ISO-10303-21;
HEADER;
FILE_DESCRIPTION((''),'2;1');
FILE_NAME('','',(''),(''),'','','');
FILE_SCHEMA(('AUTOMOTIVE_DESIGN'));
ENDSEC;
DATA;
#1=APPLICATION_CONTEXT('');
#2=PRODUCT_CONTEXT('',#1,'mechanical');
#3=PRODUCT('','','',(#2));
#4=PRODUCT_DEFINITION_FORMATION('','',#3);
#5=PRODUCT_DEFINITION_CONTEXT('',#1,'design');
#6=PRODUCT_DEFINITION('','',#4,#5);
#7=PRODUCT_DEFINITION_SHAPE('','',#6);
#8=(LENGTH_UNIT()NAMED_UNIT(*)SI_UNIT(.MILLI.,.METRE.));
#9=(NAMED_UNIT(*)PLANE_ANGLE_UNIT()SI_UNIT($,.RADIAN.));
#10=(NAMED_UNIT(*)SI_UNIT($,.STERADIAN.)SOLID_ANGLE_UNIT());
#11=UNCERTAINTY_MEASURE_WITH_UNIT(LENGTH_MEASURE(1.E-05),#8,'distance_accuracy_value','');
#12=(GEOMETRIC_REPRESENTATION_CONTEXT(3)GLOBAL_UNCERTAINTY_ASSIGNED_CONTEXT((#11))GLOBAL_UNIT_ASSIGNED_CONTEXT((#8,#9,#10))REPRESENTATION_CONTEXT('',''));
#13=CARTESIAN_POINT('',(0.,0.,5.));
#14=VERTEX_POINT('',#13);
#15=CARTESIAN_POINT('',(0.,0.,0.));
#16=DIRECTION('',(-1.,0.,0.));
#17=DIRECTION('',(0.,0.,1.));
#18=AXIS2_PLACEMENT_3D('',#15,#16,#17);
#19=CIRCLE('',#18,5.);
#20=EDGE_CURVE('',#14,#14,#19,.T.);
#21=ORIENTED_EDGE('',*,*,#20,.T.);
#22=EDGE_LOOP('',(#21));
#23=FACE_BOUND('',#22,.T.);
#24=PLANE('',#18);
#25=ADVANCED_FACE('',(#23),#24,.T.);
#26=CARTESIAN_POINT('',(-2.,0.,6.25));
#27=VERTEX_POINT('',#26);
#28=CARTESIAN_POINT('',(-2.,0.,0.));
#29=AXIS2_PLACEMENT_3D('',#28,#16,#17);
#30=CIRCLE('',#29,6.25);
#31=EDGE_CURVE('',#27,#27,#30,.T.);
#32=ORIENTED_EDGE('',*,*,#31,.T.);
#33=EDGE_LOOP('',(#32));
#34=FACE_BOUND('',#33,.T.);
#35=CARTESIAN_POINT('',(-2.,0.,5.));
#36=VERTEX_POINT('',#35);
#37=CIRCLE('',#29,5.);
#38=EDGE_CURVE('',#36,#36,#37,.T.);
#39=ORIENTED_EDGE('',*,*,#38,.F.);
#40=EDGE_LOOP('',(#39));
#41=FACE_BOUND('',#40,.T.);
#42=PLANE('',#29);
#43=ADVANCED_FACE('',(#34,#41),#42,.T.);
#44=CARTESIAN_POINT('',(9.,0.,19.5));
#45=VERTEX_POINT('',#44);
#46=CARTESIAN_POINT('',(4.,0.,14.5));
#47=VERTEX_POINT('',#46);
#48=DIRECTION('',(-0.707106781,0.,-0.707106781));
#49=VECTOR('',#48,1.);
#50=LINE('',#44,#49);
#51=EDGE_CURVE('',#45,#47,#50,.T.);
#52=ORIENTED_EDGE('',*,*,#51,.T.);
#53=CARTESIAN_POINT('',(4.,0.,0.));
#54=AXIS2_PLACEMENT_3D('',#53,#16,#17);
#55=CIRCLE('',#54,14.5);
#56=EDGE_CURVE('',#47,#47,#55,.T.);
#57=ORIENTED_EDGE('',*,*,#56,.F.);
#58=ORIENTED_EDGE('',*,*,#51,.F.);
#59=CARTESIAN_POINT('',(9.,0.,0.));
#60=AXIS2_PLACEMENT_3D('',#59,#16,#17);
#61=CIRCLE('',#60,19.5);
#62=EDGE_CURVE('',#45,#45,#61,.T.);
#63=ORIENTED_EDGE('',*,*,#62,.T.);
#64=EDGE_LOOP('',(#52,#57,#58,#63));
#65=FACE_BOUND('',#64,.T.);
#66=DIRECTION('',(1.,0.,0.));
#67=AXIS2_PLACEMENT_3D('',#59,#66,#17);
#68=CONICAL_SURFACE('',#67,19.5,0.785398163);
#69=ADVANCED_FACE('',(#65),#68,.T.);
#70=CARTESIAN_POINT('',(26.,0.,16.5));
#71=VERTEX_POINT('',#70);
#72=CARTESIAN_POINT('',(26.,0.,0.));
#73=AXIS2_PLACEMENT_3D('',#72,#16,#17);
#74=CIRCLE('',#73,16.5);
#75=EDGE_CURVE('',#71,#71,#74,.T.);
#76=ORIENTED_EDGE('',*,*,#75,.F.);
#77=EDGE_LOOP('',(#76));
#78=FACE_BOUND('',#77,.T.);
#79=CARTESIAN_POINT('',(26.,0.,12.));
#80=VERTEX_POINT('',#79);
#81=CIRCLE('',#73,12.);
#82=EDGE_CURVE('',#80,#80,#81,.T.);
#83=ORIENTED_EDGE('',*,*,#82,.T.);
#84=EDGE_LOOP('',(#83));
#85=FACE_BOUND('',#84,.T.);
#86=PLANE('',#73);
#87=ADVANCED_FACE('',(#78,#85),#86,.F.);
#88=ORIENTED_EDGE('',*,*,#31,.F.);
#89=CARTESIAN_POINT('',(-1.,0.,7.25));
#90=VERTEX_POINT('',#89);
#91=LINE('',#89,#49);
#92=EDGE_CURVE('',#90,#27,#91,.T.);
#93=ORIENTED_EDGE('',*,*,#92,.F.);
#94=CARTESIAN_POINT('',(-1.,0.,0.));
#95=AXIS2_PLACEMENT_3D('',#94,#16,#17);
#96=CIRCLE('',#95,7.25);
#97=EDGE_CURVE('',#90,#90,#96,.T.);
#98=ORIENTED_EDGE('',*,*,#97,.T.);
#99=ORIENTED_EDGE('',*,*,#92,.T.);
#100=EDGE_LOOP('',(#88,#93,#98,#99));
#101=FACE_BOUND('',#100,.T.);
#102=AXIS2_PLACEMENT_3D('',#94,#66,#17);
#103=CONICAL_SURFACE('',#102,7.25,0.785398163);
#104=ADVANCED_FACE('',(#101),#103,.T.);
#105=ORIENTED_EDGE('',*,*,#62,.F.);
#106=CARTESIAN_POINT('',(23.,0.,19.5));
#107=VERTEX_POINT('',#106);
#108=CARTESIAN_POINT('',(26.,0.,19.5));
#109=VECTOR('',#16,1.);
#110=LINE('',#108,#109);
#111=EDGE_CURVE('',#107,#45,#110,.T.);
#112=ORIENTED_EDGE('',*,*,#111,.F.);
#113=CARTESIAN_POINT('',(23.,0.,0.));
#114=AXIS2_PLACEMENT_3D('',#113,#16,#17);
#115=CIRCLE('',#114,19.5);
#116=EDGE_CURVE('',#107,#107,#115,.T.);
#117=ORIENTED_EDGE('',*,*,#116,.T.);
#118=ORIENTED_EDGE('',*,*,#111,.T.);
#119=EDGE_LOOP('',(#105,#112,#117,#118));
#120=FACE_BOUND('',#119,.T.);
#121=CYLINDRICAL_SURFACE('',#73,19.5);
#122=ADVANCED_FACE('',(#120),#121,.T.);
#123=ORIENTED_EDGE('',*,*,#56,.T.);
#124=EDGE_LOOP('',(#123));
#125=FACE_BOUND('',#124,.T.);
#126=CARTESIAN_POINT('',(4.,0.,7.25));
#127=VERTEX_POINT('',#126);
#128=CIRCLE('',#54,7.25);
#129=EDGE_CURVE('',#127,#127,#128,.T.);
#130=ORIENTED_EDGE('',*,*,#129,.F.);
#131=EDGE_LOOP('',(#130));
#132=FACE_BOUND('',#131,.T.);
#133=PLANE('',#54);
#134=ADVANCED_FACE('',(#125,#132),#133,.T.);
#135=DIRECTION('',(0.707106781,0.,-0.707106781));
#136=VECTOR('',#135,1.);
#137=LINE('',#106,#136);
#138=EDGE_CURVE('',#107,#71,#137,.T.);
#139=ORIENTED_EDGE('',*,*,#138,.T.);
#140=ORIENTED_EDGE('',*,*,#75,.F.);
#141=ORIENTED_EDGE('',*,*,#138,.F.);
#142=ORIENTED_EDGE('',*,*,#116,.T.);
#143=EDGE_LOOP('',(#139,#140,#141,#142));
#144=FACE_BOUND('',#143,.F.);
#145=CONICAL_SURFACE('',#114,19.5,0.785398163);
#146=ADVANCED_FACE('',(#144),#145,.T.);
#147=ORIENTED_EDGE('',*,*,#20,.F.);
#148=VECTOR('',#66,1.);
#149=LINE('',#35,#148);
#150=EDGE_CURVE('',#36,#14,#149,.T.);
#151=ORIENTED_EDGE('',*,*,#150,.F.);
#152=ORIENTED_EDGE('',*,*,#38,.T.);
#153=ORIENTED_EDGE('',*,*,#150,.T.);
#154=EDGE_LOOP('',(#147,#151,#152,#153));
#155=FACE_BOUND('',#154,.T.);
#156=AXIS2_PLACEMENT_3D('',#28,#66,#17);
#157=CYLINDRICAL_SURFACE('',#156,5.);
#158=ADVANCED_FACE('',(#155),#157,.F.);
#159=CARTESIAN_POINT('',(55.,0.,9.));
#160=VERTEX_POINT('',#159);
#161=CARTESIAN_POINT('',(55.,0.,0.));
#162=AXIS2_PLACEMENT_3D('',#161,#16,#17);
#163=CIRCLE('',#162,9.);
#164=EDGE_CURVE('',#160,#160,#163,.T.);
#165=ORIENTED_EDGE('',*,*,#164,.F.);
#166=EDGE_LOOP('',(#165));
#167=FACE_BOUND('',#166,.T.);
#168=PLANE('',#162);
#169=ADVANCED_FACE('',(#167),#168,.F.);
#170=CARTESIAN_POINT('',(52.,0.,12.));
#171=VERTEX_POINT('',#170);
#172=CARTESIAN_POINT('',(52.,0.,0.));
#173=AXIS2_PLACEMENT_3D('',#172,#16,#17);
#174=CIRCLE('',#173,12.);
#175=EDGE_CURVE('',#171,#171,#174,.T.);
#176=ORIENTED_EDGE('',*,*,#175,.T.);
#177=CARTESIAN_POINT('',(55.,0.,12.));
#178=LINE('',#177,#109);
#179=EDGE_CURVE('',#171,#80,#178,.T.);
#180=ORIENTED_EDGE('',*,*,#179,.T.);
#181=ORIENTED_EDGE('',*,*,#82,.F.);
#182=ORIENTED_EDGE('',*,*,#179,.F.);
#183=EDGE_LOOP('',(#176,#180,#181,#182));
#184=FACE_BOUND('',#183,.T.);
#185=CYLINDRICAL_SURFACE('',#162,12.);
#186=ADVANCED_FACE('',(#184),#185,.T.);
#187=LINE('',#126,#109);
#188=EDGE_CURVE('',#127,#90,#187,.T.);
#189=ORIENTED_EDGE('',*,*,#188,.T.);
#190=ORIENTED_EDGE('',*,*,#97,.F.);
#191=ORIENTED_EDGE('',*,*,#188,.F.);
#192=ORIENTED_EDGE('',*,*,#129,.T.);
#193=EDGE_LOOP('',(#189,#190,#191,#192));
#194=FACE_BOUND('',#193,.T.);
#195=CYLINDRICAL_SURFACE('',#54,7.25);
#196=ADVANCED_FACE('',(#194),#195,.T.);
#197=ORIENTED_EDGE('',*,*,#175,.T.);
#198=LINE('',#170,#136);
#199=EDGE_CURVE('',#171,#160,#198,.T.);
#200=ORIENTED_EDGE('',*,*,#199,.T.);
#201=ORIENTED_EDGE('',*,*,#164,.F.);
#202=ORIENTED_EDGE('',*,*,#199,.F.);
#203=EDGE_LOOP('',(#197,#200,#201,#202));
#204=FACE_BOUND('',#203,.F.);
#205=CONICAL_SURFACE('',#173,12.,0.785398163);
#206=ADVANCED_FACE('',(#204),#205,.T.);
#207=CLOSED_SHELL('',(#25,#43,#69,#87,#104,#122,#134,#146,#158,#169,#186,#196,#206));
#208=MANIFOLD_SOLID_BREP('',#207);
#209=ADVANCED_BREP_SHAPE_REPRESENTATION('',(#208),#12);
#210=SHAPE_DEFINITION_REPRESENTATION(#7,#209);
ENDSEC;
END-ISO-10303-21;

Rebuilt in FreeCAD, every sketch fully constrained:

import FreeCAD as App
import Part
import Sketcher

V = App.Vector
Q = App.Units.Quantity


def edges_at(feature, points):
    """Names of the edges that pass closest to the given points."""
    edges = feature.Shape.Edges
    near = lambda p: min(range(len(edges)), key=lambda i: edges[i].distToShape(Part.Vertex(*p))[0])
    return sorted({f"Edge{near(p) + 1}" for p in points})

doc = App.newDocument("Part")
body = doc.addObject("PartDesign::Body", "Body")

sketch1 = body.newObject("Sketcher::SketchObject", "Sketch")
sketch1.AttachmentSupport = (doc.getObject("XZ_Plane"), [""])
sketch1.MapMode = "FlatFace"
sketch1.addGeometry([
    Part.LineSegment(V(0, 5, 0), V(0, 0, 0)),
    Part.LineSegment(V(0, 0, 0), V(55, 0, 0)),
    Part.LineSegment(V(55, 0, 0), V(55, 12, 0)),
    Part.LineSegment(V(55, 12, 0), V(26, 12, 0)),
    Part.LineSegment(V(26, 12, 0), V(26, 19.5, 0)),
    Part.LineSegment(V(26, 19.5, 0), V(4, 19.5, 0)),
    Part.LineSegment(V(4, 19.5, 0), V(4, 7.2, 0)),
    Part.LineSegment(V(4, 7.2, 0), V(-2, 7.2, 0)),
    Part.LineSegment(V(-2, 7.2, 0), V(-2, 5, 0)),
    Part.LineSegment(V(-2, 5, 0), V(0, 5, 0)),
], False)
sketch1.addConstraint([
    Sketcher.Constraint("Coincident", 0, 2, 1, 1),
    Sketcher.Constraint("Coincident", 1, 2, 2, 1),
    Sketcher.Constraint("Coincident", 2, 2, 3, 1),
    Sketcher.Constraint("Coincident", 3, 2, 4, 1),
    Sketcher.Constraint("Coincident", 4, 2, 5, 1),
    Sketcher.Constraint("Coincident", 5, 2, 6, 1),
    Sketcher.Constraint("Coincident", 6, 2, 7, 1),
    Sketcher.Constraint("Coincident", 7, 2, 8, 1),
    Sketcher.Constraint("Coincident", 8, 2, 9, 1),
    Sketcher.Constraint("Coincident", 9, 2, 0, 1),
    Sketcher.Constraint("Vertical", 0),
    Sketcher.Constraint("Horizontal", 1),
    Sketcher.Constraint("Vertical", 2),
    Sketcher.Constraint("Horizontal", 3),
    Sketcher.Constraint("Vertical", 4),
    Sketcher.Constraint("Horizontal", 5),
    Sketcher.Constraint("Vertical", 6),
    Sketcher.Constraint("Horizontal", 7),
    Sketcher.Constraint("Vertical", 8),
    Sketcher.Constraint("Horizontal", 9),
    Sketcher.Constraint("Coincident", 0, 2, -1, 1),
    Sketcher.Constraint("DistanceX", 1, 1, 1, 2, Q("55 mm")),
    Sketcher.Constraint("DistanceX", 3, 2, 3, 1, Q("29 mm")),
    Sketcher.Constraint("DistanceX", 5, 2, 5, 1, Q("22 mm")),
    Sketcher.Constraint("DistanceX", 7, 2, 7, 1, Q("6 mm")),
    Sketcher.Constraint("DistanceY", 0, 2, 0, 1, Q("5 mm")),
    Sketcher.Constraint("DistanceY", 2, 1, 2, 2, Q("12 mm")),
    Sketcher.Constraint("DistanceY", 4, 1, 4, 2, Q("7.5 mm")),
    Sketcher.Constraint("DistanceY", 6, 2, 6, 1, Q("12.25 mm")),
])
revolution = body.newObject("PartDesign::Revolution", "Revolution")
revolution.Profile = sketch1
revolution.ReferenceAxis = (sketch1, ["H_Axis"])
revolution.Angle = 360
doc.recompute()

chamfer = body.newObject("PartDesign::Chamfer", "Chamfer")
chamfer.Base = (revolution, edges_at(revolution, [(4, 0, -19.5)]))
chamfer.Size = 5
doc.recompute()

chamfer2 = body.newObject("PartDesign::Chamfer", "Chamfer001")
chamfer2.Base = (chamfer, edges_at(chamfer, [(26, 0, -19.5), (55, 0, -12)]))
chamfer2.Size = 3
doc.recompute()

chamfer3 = body.newObject("PartDesign::Chamfer", "Chamfer002")
chamfer3.Base = (chamfer2, edges_at(chamfer2, [(-2, 0, -7.25)]))
chamfer3.Size = 1

doc.recompute()
